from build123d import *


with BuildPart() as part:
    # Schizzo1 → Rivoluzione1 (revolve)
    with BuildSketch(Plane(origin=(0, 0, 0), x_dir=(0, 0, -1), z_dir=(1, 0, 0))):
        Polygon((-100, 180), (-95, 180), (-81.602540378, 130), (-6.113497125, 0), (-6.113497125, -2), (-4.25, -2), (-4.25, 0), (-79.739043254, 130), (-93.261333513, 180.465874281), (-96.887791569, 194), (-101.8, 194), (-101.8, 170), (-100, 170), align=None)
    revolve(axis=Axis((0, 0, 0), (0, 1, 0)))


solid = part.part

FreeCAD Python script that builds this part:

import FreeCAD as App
import Part
import Sketcher

V = App.Vector
Q = App.Units.Quantity


def add_polygon(sketch, points):
    """Adds a closed chain of lines whose ends are joined by coincident constraints."""
    first, n = sketch.GeometryCount, len(points)
    for a, b in zip(points, points[1:] + points[:1]):
        sketch.addGeometry(Part.LineSegment(App.Vector(*a, 0), App.Vector(*b, 0)), False)
    for i in range(n):
        sketch.addConstraint(Sketcher.Constraint("Coincident", first + i, 2, first + (i + 1) % n, 1))

doc = App.newDocument("Part")
body = doc.addObject("PartDesign::Body", "Body")

# Sketch on YZ plane
sketch1 = doc.addObject("Sketcher::SketchObject", "Sketch")
body.addObject(sketch1)
sketch1.AttachmentSupport = (doc.YZ_Plane, [""])
sketch1.MapMode = "FlatFace"
add_polygon(sketch1, [(180, 100), (180, 95), (130, 81.6), (0, 6.1), (-2, 6.1), (-2, 4.2), (0, 4.2), (130, 79.7), (180.5, 93.3), (194, 96.9), (194, 101.8), (170, 101.8), (170, 100)])  # lines 0-12
sketch1.addConstraint(Sketcher.Constraint("Vertical", 0))
sketch1.addConstraint(Sketcher.Constraint("Horizontal", 3))
sketch1.addConstraint(Sketcher.Constraint("Vertical", 4))
sketch1.addConstraint(Sketcher.Constraint("Horizontal", 5))
sketch1.addConstraint(Sketcher.Constraint("Vertical", 9))
sketch1.addConstraint(Sketcher.Constraint("Horizontal", 10))
sketch1.addConstraint(Sketcher.Constraint("Vertical", 11))
sketch1.addConstraint(Sketcher.Constraint("Horizontal", 12))
sketch1.addConstraint(Sketcher.Constraint("PointOnObject", 2, 2, -2))
sketch1.addConstraint(Sketcher.Constraint("PointOnObject", 5, 2, -2))
sketch1.addConstraint(Sketcher.Constraint("Parallel", 2, 6))
sketch1.addConstraint(Sketcher.Constraint("Parallel", 1, 7))
sketch1.addConstraint(Sketcher.Constraint("Parallel", 7, 8))
sketch1.addConstraint(Sketcher.Constraint("Vertical", 1, 2, 6, 2))
sketch1.addConstraint(Sketcher.Constraint("DistanceX", 3, 2, 3, 1, Q("2 mm")))
sketch1.addConstraint(Sketcher.Constraint("DistanceX", 10, 2, 10, 1, Q("24 mm")))
sketch1.addConstraint(Sketcher.Constraint("DistanceX", 12, 1, 12, 2, Q("10 mm")))
sketch1.addConstraint(Sketcher.Constraint("DistanceY", 0, 2, 0, 1, Q("5 mm")))
sketch1.addConstraint(Sketcher.Constraint("Angle", 1, Q("-165 deg")))
sketch1.addConstraint(Sketcher.Constraint("DistanceY", 11, 2, 11, 1, Q("1.8 mm")))
sketch1.addConstraint(Sketcher.Constraint("DistanceX", -1, 1, 0, 2, Q("180 mm")))
sketch1.addConstraint(Sketcher.Constraint("DistanceY", -1, 1, 0, 2, Q("95 mm")))
sketch1.addConstraint(Sketcher.Constraint("DistanceX", -1, 1, 1, 2, Q("130 mm")))
sketch1.addConstraint(Sketcher.Constraint("DistanceY", -1, 1, 4, 2, Q("4.25 mm")))
sketch1.addConstraint(Sketcher.Constraint("DistanceY", 9, 1, 9, 2, Q("4.912208 mm")))
sketch1.addConstraint(Sketcher.Constraint("DistanceY", 6, 2, 7, 2, Q("13.52229 mm")))
revolution = doc.addObject("PartDesign::Revolution", "Revolution")
body.addObject(revolution)
revolution.Profile = sketch1
revolution.ReferenceAxis = (sketch1, ["H_Axis"])
revolution.Angle = 360

doc.recompute()
